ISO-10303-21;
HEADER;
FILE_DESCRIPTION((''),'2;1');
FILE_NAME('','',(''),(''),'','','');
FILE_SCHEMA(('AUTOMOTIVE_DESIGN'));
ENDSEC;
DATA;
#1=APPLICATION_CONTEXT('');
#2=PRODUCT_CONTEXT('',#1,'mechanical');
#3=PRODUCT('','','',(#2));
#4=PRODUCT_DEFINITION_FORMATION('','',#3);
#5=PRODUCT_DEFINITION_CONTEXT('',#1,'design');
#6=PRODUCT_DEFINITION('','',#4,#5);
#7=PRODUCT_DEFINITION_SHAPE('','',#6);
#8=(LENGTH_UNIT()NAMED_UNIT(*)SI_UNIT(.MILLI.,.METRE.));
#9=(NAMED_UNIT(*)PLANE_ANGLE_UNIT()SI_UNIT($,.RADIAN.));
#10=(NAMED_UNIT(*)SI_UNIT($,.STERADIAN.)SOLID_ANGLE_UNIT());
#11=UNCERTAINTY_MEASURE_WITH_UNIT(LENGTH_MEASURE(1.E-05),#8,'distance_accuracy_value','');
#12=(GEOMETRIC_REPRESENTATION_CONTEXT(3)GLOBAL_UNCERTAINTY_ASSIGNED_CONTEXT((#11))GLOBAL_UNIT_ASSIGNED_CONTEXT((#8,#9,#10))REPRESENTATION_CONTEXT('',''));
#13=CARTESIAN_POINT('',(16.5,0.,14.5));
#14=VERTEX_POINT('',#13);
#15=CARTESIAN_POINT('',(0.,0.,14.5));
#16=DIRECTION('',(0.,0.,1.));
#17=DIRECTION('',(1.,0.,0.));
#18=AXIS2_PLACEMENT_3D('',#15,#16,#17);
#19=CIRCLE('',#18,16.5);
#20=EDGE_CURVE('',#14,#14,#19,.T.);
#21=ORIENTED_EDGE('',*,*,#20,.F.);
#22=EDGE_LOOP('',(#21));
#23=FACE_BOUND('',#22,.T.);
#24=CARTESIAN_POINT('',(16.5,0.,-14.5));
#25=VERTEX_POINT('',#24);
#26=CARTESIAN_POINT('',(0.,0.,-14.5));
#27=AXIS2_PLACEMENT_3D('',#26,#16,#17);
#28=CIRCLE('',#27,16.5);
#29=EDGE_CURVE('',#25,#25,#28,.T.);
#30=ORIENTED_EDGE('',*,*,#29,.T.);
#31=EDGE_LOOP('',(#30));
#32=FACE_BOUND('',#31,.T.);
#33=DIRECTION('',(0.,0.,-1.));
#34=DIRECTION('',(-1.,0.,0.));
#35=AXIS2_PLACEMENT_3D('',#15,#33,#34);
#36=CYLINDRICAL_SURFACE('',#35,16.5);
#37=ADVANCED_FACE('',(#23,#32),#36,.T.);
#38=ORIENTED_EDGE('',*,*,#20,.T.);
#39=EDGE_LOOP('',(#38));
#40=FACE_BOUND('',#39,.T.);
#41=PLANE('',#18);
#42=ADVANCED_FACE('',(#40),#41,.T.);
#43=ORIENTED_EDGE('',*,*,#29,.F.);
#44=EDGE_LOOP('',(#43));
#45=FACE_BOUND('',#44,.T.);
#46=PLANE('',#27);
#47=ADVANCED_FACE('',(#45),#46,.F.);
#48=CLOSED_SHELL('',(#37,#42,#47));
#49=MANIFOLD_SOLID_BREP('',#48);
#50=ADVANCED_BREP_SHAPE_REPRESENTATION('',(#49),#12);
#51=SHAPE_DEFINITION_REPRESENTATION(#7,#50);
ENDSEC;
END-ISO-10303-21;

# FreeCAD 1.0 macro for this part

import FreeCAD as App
import Part
import Sketcher

doc = App.newDocument("Part")
body = doc.addObject("PartDesign::Body", "Body")

# Sketch on XY plane
sketch1 = body.newObject("Sketcher::SketchObject", "Sketch")
sketch1.AttachmentSupport = (doc.getObject("XY_Plane"), [""])
sketch1.MapMode = "FlatFace"
sketch1.addGeometry(Part.Circle(App.Vector(0, 0, 0), App.Vector(0, 0, 1), 16), False)
sketch1.addConstraint(Sketcher.Constraint("Coincident", 0, 3, -1, 1))
sketch1.addConstraint(Sketcher.Constraint("Diameter", 0, 33.0))
pad1 = body.newObject("PartDesign::Pad", "Pad")
pad1.Profile = sketch1
pad1.Length = 29
pad1.Midplane = True

doc.recompute()
